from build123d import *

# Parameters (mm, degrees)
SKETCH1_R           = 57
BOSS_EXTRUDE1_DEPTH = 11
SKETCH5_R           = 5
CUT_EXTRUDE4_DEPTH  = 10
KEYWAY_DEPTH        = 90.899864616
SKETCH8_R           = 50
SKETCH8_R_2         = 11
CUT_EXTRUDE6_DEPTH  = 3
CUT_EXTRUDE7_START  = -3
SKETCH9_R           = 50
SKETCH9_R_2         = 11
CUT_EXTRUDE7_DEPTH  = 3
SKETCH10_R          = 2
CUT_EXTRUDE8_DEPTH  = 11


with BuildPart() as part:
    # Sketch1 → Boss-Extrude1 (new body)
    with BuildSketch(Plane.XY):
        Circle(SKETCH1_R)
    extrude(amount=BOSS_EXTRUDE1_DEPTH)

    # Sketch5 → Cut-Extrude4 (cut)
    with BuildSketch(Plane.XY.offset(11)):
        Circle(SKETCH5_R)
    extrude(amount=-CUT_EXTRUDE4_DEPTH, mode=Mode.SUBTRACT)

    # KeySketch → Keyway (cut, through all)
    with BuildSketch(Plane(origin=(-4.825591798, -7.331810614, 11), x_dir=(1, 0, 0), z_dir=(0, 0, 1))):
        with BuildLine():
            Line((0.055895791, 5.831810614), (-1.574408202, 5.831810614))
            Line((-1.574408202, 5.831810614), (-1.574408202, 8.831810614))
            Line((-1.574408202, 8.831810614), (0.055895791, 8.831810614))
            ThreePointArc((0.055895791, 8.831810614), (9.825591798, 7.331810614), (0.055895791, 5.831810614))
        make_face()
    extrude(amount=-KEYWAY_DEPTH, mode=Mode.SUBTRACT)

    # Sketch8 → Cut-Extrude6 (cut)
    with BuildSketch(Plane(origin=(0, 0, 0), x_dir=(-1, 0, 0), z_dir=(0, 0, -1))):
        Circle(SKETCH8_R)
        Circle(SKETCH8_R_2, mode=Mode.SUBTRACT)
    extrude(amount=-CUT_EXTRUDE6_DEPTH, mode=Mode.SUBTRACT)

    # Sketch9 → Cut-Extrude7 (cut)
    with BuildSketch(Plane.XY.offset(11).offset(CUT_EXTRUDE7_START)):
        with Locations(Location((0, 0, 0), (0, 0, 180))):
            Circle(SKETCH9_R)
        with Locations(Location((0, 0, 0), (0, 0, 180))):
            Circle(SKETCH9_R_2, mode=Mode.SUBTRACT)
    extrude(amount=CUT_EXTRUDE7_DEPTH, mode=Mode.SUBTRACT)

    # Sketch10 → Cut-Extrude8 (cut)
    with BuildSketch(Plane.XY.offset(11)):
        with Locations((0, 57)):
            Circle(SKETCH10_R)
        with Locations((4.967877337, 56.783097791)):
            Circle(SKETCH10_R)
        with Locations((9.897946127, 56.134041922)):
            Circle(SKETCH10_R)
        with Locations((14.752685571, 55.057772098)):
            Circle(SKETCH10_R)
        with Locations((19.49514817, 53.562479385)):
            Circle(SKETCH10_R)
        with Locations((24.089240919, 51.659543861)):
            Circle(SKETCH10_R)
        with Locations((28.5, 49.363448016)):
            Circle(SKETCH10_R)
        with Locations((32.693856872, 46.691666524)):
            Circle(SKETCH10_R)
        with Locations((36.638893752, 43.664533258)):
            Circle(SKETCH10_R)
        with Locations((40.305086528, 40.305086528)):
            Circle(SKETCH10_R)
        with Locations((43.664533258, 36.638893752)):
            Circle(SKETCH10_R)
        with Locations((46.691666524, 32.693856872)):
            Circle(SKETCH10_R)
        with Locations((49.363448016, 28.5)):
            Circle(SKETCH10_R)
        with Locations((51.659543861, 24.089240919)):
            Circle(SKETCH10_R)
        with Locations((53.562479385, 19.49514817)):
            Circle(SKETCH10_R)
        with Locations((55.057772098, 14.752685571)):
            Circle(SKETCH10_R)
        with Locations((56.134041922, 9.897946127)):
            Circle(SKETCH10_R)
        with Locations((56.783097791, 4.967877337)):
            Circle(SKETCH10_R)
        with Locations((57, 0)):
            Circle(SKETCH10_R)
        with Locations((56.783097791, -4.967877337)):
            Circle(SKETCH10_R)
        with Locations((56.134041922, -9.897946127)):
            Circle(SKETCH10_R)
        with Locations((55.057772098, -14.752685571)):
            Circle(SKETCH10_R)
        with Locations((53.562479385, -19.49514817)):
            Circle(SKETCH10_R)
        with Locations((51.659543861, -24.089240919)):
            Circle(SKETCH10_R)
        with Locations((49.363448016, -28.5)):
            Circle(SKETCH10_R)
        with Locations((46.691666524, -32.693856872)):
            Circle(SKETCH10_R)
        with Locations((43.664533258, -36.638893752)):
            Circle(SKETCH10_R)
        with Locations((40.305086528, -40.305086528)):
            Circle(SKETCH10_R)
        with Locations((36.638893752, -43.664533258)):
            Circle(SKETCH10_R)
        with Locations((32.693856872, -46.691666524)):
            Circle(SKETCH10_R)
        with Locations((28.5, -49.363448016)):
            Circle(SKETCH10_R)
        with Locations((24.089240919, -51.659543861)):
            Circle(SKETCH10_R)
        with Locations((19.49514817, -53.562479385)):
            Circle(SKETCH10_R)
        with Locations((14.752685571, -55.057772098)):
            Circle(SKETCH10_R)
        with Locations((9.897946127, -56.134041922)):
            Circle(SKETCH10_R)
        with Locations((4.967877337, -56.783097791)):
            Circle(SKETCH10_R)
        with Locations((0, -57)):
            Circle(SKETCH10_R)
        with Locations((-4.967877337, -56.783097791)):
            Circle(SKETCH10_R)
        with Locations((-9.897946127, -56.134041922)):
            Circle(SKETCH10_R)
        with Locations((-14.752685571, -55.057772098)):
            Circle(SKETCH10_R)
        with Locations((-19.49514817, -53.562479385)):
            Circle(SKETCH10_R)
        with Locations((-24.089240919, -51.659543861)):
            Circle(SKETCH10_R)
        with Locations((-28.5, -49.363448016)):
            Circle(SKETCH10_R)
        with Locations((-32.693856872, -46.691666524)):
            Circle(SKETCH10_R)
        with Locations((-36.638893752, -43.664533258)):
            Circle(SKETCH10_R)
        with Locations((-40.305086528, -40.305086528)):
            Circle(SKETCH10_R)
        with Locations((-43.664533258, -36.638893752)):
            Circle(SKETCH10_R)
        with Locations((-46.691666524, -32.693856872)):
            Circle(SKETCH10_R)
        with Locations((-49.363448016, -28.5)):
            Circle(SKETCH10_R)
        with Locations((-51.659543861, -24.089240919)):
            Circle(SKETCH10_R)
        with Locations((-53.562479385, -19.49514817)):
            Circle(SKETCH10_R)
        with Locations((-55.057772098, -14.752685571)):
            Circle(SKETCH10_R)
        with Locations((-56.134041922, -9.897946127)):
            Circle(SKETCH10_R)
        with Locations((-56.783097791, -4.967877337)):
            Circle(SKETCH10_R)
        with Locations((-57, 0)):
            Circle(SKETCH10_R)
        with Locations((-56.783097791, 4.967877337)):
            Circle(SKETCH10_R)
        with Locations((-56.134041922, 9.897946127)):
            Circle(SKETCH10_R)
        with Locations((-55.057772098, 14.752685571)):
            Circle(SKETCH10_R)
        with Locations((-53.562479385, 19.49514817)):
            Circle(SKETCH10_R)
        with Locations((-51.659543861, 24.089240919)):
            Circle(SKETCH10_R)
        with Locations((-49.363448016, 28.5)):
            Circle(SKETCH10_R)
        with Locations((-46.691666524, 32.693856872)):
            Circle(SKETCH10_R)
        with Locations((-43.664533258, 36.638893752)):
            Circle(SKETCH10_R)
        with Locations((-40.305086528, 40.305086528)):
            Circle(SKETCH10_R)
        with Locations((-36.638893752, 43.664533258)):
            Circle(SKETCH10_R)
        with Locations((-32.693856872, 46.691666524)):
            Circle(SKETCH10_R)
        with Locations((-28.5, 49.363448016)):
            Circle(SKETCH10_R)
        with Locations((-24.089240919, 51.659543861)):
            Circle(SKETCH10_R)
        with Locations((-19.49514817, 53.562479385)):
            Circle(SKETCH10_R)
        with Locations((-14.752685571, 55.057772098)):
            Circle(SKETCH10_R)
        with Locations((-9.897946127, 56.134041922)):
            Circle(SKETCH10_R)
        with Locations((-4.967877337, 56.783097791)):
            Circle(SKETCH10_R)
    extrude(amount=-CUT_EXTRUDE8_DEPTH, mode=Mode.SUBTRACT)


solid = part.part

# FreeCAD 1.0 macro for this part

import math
import FreeCAD as App
import Part
import Sketcher

V = App.Vector
Q = App.Units.Quantity

doc = App.newDocument("Part")
body = doc.addObject("PartDesign::Body", "Body")

# Sketch on XY plane
sketch1 = body.newObject("Sketcher::SketchObject", "Sketch")
sketch1.AttachmentSupport = (doc.getObject("XY_Plane"), [""])
sketch1.MapMode = "FlatFace"
sketch1.addGeometry(Part.Circle(V(0, 0, 0), V(0, 0, 1), 57), False)
sketch1.addConstraint([
    Sketcher.Constraint("Coincident", 0, 3, -1, 1),
    Sketcher.Constraint("Diameter", 0, Q("114 mm")),
])
pad1 = body.newObject("PartDesign::Pad", "Pad")
pad1.Profile = sketch1
pad1.Length = 11

# Sketch on XY plane
sketch2 = body.newObject("Sketcher::SketchObject", "Sketch001")
sketch2.AttachmentSupport = (doc.getObject("XY_Plane"), [""])
sketch2.MapMode = "FlatFace"
sketch2.AttachmentOffset = App.Placement(V(0, 0, 11), App.Rotation())
sketch2.addGeometry(Part.Circle(V(0, 0, 0), V(0, 0, 1), 5), False)
sketch2.addConstraint([
    Sketcher.Constraint("Coincident", 0, 3, -1, 1),
    Sketcher.Constraint("Diameter", 0, Q("10 mm")),
])
pocket1 = body.newObject("PartDesign::Pocket", "Pocket")
pocket1.Profile = sketch2
pocket1.Length = 10

# Sketch on XY plane
sketch3 = body.newObject("Sketcher::SketchObject", "Sketch002")
sketch3.AttachmentSupport = (doc.getObject("XY_Plane"), [""])
sketch3.MapMode = "FlatFace"
sketch3.AttachmentOffset = App.Placement(V(0, 0, 11), App.Rotation())
sketch3.addGeometry([
    Part.LineSegment(V(-6.4, -1.5, 0), V(-4.8, -1.5, 0)),
    Part.ArcOfCircle(Part.Circle(V(0, 0, 0), V(0, 0, 1), 5), math.radians(-163), math.radians(163)),
    Part.LineSegment(V(-4.8, 1.5, 0), V(-6.4, 1.5, 0)),
    Part.LineSegment(V(-6.4, 1.5, 0), V(-6.4, -1.5, 0)),
], False)
sketch3.addConstraint([
    Sketcher.Constraint("Coincident", 0, 2, 1, 1),
    Sketcher.Constraint("Coincident", 1, 2, 2, 1),
    Sketcher.Constraint("Coincident", 2, 2, 3, 1),
    Sketcher.Constraint("Coincident", 3, 2, 0, 1),
    Sketcher.Constraint("Horizontal", 0),
    Sketcher.Constraint("Horizontal", 2),
    Sketcher.Constraint("Vertical", 3),
    Sketcher.Constraint("Coincident", 1, 3, -1, 1),
    Sketcher.Constraint("Vertical", 0, 2, 1, 2),
    Sketcher.Constraint("Radius", 1, Q("5 mm")),
    Sketcher.Constraint("DistanceY", 3, 2, 3, 1, Q("3 mm")),
    Sketcher.Constraint("DistanceX", 2, 2, -1, 1, Q("6.4 mm")),
])
pocket2 = body.newObject("PartDesign::Pocket", "Pocket001")
pocket2.Profile = sketch3
pocket2.Type = "ThroughAll"

# Sketch on XY plane
sketch4 = body.newObject("Sketcher::SketchObject", "Sketch003")
sketch4.AttachmentSupport = (doc.getObject("XY_Plane"), [""])
sketch4.MapMode = "FlatFace"
sketch4.addGeometry([
    Part.Circle(V(0, 0, 0), V(0, 0, 1), 50),
    Part.Circle(V(0, 0, 0), V(0, 0, 1), 11),
], False)
sketch4.addConstraint([
    Sketcher.Constraint("Coincident", 0, 3, -1, 1),
    Sketcher.Constraint("Coincident", 1, 3, -1, 1),
    Sketcher.Constraint("Diameter", 0, Q("100 mm")),
    Sketcher.Constraint("Diameter", 1, Q("22 mm")),
])
pocket3 = body.newObject("PartDesign::Pocket", "Pocket002")
pocket3.Profile = sketch4
pocket3.Length = 3
pocket3.Reversed = True

# Sketch on XY plane
sketch5 = body.newObject("Sketcher::SketchObject", "Sketch004")
sketch5.AttachmentSupport = (doc.getObject("XY_Plane"), [""])
sketch5.MapMode = "FlatFace"
sketch5.AttachmentOffset = App.Placement(V(0, 0, 8), App.Rotation())
sketch5.addGeometry([
    Part.Circle(V(0, 0, 0), V(0, 0, 1), 50),
    Part.Circle(V(0, 0, 0), V(0, 0, 1), 11),
], False)
sketch5.addConstraint([
    Sketcher.Constraint("Coincident", 0, 3, -1, 1),
    Sketcher.Constraint("Coincident", 1, 3, -1, 1),
    Sketcher.Constraint("Diameter", 0, Q("100 mm")),
    Sketcher.Constraint("Diameter", 1, Q("22 mm")),
])
pocket4 = body.newObject("PartDesign::Pocket", "Pocket003")
pocket4.Profile = sketch5
pocket4.Length = 3
pocket4.Reversed = True

# Sketch on XY plane
sketch6 = body.newObject("Sketcher::SketchObject", "Sketch005")
sketch6.AttachmentSupport = (doc.getObject("XY_Plane"), [""])
sketch6.MapMode = "FlatFace"
sketch6.AttachmentOffset = App.Placement(V(0, 0, 11), App.Rotation())
sketch6.addGeometry([
    Part.Circle(V(0, 57, 0), V(0, 0, 1), 2),  # 0
    Part.Circle(V(5, 56.8, 0), V(0, 0, 1), 2),  # 1
    Part.Circle(V(9.9, 56.1, 0), V(0, 0, 1), 2),  # 2
    Part.Circle(V(14.8, 55.1, 0), V(0, 0, 1), 2),  # 3
    Part.Circle(V(19.5, 53.6, 0), V(0, 0, 1), 2),  # 4
    Part.Circle(V(24.1, 51.7, 0), V(0, 0, 1), 2),  # 5
    Part.Circle(V(28.5, 49.4, 0), V(0, 0, 1), 2),  # 6
    Part.Circle(V(32.7, 46.7, 0), V(0, 0, 1), 2),  # 7
    Part.Circle(V(36.6, 43.7, 0), V(0, 0, 1), 2),  # 8
    Part.Circle(V(40.3, 40.3, 0), V(0, 0, 1), 2),  # 9
    Part.Circle(V(43.7, 36.6, 0), V(0, 0, 1), 2),  # 10
    Part.Circle(V(46.7, 32.7, 0), V(0, 0, 1), 2),  # 11
    Part.Circle(V(49.4, 28.5, 0), V(0, 0, 1), 2),  # 12
    Part.Circle(V(51.7, 24.1, 0), V(0, 0, 1), 2),  # 13
    Part.Circle(V(53.6, 19.5, 0), V(0, 0, 1), 2),  # 14
    Part.Circle(V(55.1, 14.8, 0), V(0, 0, 1), 2),  # 15
    Part.Circle(V(56.1, 9.9, 0), V(0, 0, 1), 2),  # 16
    Part.Circle(V(56.8, 5, 0), V(0, 0, 1), 2),  # 17
    Part.Circle(V(57, 0, 0), V(0, 0, 1), 2),  # 18
    Part.Circle(V(56.8, -5, 0), V(0, 0, 1), 2),  # 19
    Part.Circle(V(56.1, -9.9, 0), V(0, 0, 1), 2),  # 20
    Part.Circle(V(55.1, -14.8, 0), V(0, 0, 1), 2),  # 21
    Part.Circle(V(53.6, -19.5, 0), V(0, 0, 1), 2),  # 22
    Part.Circle(V(51.7, -24.1, 0), V(0, 0, 1), 2),  # 23
    Part.Circle(V(49.4, -28.5, 0), V(0, 0, 1), 2),  # 24
    Part.Circle(V(46.7, -32.7, 0), V(0, 0, 1), 2),  # 25
    Part.Circle(V(43.7, -36.6, 0), V(0, 0, 1), 2),  # 26
    Part.Circle(V(40.3, -40.3, 0), V(0, 0, 1), 2),  # 27
    Part.Circle(V(36.6, -43.7, 0), V(0, 0, 1), 2),  # 28
    Part.Circle(V(32.7, -46.7, 0), V(0, 0, 1), 2),  # 29
    Part.Circle(V(28.5, -49.4, 0), V(0, 0, 1), 2),  # 30
    Part.Circle(V(24.1, -51.7, 0), V(0, 0, 1), 2),  # 31
    Part.Circle(V(19.5, -53.6, 0), V(0, 0, 1), 2),  # 32
    Part.Circle(V(14.8, -55.1, 0), V(0, 0, 1), 2),  # 33
    Part.Circle(V(9.9, -56.1, 0), V(0, 0, 1), 2),  # 34
    Part.Circle(V(5, -56.8, 0), V(0, 0, 1), 2),  # 35
    Part.Circle(V(0, -57, 0), V(0, 0, 1), 2),  # 36
    Part.Circle(V(-5, -56.8, 0), V(0, 0, 1), 2),  # 37
    Part.Circle(V(-9.9, -56.1, 0), V(0, 0, 1), 2),  # 38
    Part.Circle(V(-14.8, -55.1, 0), V(0, 0, 1), 2),  # 39
    Part.Circle(V(-19.5, -53.6, 0), V(0, 0, 1), 2),  # 40
    Part.Circle(V(-24.1, -51.7, 0), V(0, 0, 1), 2),  # 41
    Part.Circle(V(-28.5, -49.4, 0), V(0, 0, 1), 2),  # 42
    Part.Circle(V(-32.7, -46.7, 0), V(0, 0, 1), 2),  # 43
    Part.Circle(V(-36.6, -43.7, 0), V(0, 0, 1), 2),  # 44
    Part.Circle(V(-40.3, -40.3, 0), V(0, 0, 1), 2),  # 45
    Part.Circle(V(-43.7, -36.6, 0), V(0, 0, 1), 2),  # 46
    Part.Circle(V(-46.7, -32.7, 0), V(0, 0, 1), 2),  # 47
    Part.Circle(V(-49.4, -28.5, 0), V(0, 0, 1), 2),  # 48
    Part.Circle(V(-51.7, -24.1, 0), V(0, 0, 1), 2),  # 49
    Part.Circle(V(-53.6, -19.5, 0), V(0, 0, 1), 2),  # 50
    Part.Circle(V(-55.1, -14.8, 0), V(0, 0, 1), 2),  # 51
    Part.Circle(V(-56.1, -9.9, 0), V(0, 0, 1), 2),  # 52
    Part.Circle(V(-56.8, -5, 0), V(0, 0, 1), 2),  # 53
    Part.Circle(V(-57, 0, 0), V(0, 0, 1), 2),  # 54
    Part.Circle(V(-56.8, 5, 0), V(0, 0, 1), 2),  # 55
    Part.Circle(V(-56.1, 9.9, 0), V(0, 0, 1), 2),  # 56
    Part.Circle(V(-55.1, 14.8, 0), V(0, 0, 1), 2),  # 57
    Part.Circle(V(-53.6, 19.5, 0), V(0, 0, 1), 2),  # 58
    Part.Circle(V(-51.7, 24.1, 0), V(0, 0, 1), 2),  # 59
    Part.Circle(V(-49.4, 28.5, 0), V(0, 0, 1), 2),  # 60
    Part.Circle(V(-46.7, 32.7, 0), V(0, 0, 1), 2),  # 61
    Part.Circle(V(-43.7, 36.6, 0), V(0, 0, 1), 2),  # 62
    Part.Circle(V(-40.3, 40.3, 0), V(0, 0, 1), 2),  # 63
    Part.Circle(V(-36.6, 43.7, 0), V(0, 0, 1), 2),  # 64
    Part.Circle(V(-32.7, 46.7, 0), V(0, 0, 1), 2),  # 65
    Part.Circle(V(-28.5, 49.4, 0), V(0, 0, 1), 2),  # 66
    Part.Circle(V(-24.1, 51.7, 0), V(0, 0, 1), 2),  # 67
    Part.Circle(V(-19.5, 53.6, 0), V(0, 0, 1), 2),  # 68
    Part.Circle(V(-14.8, 55.1, 0), V(0, 0, 1), 2),  # 69
    Part.Circle(V(-9.9, 56.1, 0), V(0, 0, 1), 2),  # 70
    Part.Circle(V(-5, 56.8, 0), V(0, 0, 1), 2),  # 71
], False)
sketch6.addConstraint([
    Sketcher.Constraint("Equal", 0, 1),
    Sketcher.Constraint("Equal", 1, 2),
    Sketcher.Constraint("Equal", 2, 3),
    Sketcher.Constraint("Equal", 3, 4),
    Sketcher.Constraint("Equal", 4, 5),
    Sketcher.Constraint("Equal", 5, 6),
    Sketcher.Constraint("Equal", 6, 7),
    Sketcher.Constraint("Equal", 7, 8),
    Sketcher.Constraint("Equal", 8, 9),
    Sketcher.Constraint("Equal", 9, 10),
    Sketcher.Constraint("Equal", 10, 11),
    Sketcher.Constraint("Equal", 11, 12),
    Sketcher.Constraint("Equal", 12, 13),
    Sketcher.Constraint("Equal", 13, 14),
    Sketcher.Constraint("Equal", 14, 15),
    Sketcher.Constraint("Equal", 15, 16),
    Sketcher.Constraint("Equal", 16, 17),
    Sketcher.Constraint("Equal", 17, 18),
    Sketcher.Constraint("Equal", 18, 19),
    Sketcher.Constraint("Equal", 19, 20),
    Sketcher.Constraint("Equal", 20, 21),
    Sketcher.Constraint("Equal", 21, 22),
    Sketcher.Constraint("Equal", 22, 23),
    Sketcher.Constraint("Equal", 23, 24),
    Sketcher.Constraint("Equal", 24, 25),
    Sketcher.Constraint("Equal", 25, 26),
    Sketcher.Constraint("Equal", 26, 27),
    Sketcher.Constraint("Equal", 27, 28),
    Sketcher.Constraint("Equal", 28, 29),
    Sketcher.Constraint("Equal", 29, 30),
    Sketcher.Constraint("Equal", 30, 31),
    Sketcher.Constraint("Equal", 31, 32),
    Sketcher.Constraint("Equal", 32, 33),
    Sketcher.Constraint("Equal", 33, 34),
    Sketcher.Constraint("Equal", 34, 35),
    Sketcher.Constraint("Equal", 35, 36),
    Sketcher.Constraint("Equal", 36, 37),
    Sketcher.Constraint("Equal", 37, 38),
    Sketcher.Constraint("Equal", 38, 39),
    Sketcher.Constraint("Equal", 39, 40),
    Sketcher.Constraint("Equal", 40, 41),
    Sketcher.Constraint("Equal", 41, 42),
    Sketcher.Constraint("Equal", 42, 43),
    Sketcher.Constraint("Equal", 43, 44),
    Sketcher.Constraint("Equal", 44, 45),
    Sketcher.Constraint("Equal", 45, 46),
    Sketcher.Constraint("Equal", 46, 47),
    Sketcher.Constraint("Equal", 47, 48),
    Sketcher.Constraint("Equal", 48, 49),
    Sketcher.Constraint("Equal", 49, 50),
    Sketcher.Constraint("Equal", 50, 51),
    Sketcher.Constraint("Equal", 51, 52),
    Sketcher.Constraint("Equal", 52, 53),
    Sketcher.Constraint("Equal", 53, 54),
    Sketcher.Constraint("Equal", 54, 55),
    Sketcher.Constraint("Equal", 55, 56),
    Sketcher.Constraint("Equal", 56, 57),
    Sketcher.Constraint("Equal", 57, 58),
    Sketcher.Constraint("Equal", 58, 59),
    Sketcher.Constraint("Equal", 59, 60),
    Sketcher.Constraint("Equal", 60, 61),
    Sketcher.Constraint("Equal", 61, 62),
    Sketcher.Constraint("Equal", 62, 63),
    Sketcher.Constraint("Equal", 63, 64),
    Sketcher.Constraint("Equal", 64, 65),
    Sketcher.Constraint("Equal", 65, 66),
    Sketcher.Constraint("Equal", 66, 67),
    Sketcher.Constraint("Equal", 67, 68),
    Sketcher.Constraint("Equal", 68, 69),
    Sketcher.Constraint("Equal", 69, 70),
    Sketcher.Constraint("Equal", 70, 71),
    Sketcher.Constraint("Symmetric", 0, 3, 36, 3, -1, 1),
    Sketcher.Constraint("Symmetric", 1, 3, 37, 3, -1, 1),
    Sketcher.Constraint("Symmetric", 2, 3, 38, 3, -1, 1),
    Sketcher.Constraint("Symmetric", 3, 3, 39, 3, -1, 1),
    Sketcher.Constraint("Symmetric", 4, 3, 40, 3, -1, 1),
    Sketcher.Constraint("Symmetric", 5, 3, 41, 3, -1, 1),
    Sketcher.Constraint("Symmetric", 6, 3, 42, 3, -1, 1),
    Sketcher.Constraint("Symmetric", 7, 3, 43, 3, -1, 1),
    Sketcher.Constraint("Symmetric", 8, 3, 44, 3, -1, 1),
    Sketcher.Constraint("Symmetric", 9, 3, 45, 3, -1, 1),
    Sketcher.Constraint("Symmetric", 10, 3, 46, 3, -1, 1),
    Sketcher.Constraint("Symmetric", 11, 3, 47, 3, -1, 1),
    Sketcher.Constraint("Symmetric", 12, 3, 48, 3, -1, 1),
    Sketcher.Constraint("Symmetric", 13, 3, 49, 3, -1, 1),
    Sketcher.Constraint("Symmetric", 14, 3, 50, 3, -1, 1),
    Sketcher.Constraint("Symmetric", 15, 3, 51, 3, -1, 1),
    Sketcher.Constraint("Symmetric", 16, 3, 52, 3, -1, 1),
    Sketcher.Constraint("Symmetric", 17, 3, 53, 3, -1, 1),
    Sketcher.Constraint("Symmetric", 18, 3, 54, 3, -1, 1),
    Sketcher.Constraint("Symmetric", 19, 3, 55, 3, -1, 1),
    Sketcher.Constraint("Symmetric", 20, 3, 56, 3, -1, 1),
    Sketcher.Constraint("Symmetric", 21, 3, 57, 3, -1, 1),
    Sketcher.Constraint("Symmetric", 22, 3, 58, 3, -1, 1),
    Sketcher.Constraint("Symmetric", 23, 3, 59, 3, -1, 1),
    Sketcher.Constraint("Symmetric", 24, 3, 60, 3, -1, 1),
    Sketcher.Constraint("Symmetric", 25, 3, 61, 3, -1, 1),
    Sketcher.Constraint("Symmetric", 26, 3, 62, 3, -1, 1),
    Sketcher.Constraint("Symmetric", 27, 3, 63, 3, -1, 1),
    Sketcher.Constraint("Symmetric", 28, 3, 64, 3, -1, 1),
    Sketcher.Constraint("Symmetric", 29, 3, 65, 3, -1, 1),
    Sketcher.Constraint("Symmetric", 30, 3, 66, 3, -1, 1),
    Sketcher.Constraint("Symmetric", 31, 3, 67, 3, -1, 1),
    Sketcher.Constraint("Symmetric", 32, 3, 68, 3, -1, 1),
    Sketcher.Constraint("Symmetric", 33, 3, 69, 3, -1, 1),
    Sketcher.Constraint("Symmetric", 34, 3, 70, 3, -1, 1),
    Sketcher.Constraint("Symmetric", 35, 3, 71, 3, -1, 1),
    Sketcher.Constraint("Symmetric", 35, 3, 37, 3, -2),
    Sketcher.Constraint("Symmetric", 34, 3, 38, 3, -2),
    Sketcher.Constraint("Symmetric", 33, 3, 39, 3, -2),
    Sketcher.Constraint("Symmetric", 32, 3, 40, 3, -2),
    Sketcher.Constraint("Symmetric", 31, 3, 41, 3, -2),
    Sketcher.Constraint("Symmetric", 30, 3, 42, 3, -2),
    Sketcher.Constraint("Symmetric", 29, 3, 43, 3, -2),
    Sketcher.Constraint("Symmetric", 28, 3, 44, 3, -2),
    Sketcher.Constraint("Symmetric", 27, 3, 45, 3, -2),
    Sketcher.Constraint("Symmetric", 26, 3, 46, 3, -2),
    Sketcher.Constraint("Symmetric", 25, 3, 47, 3, -2),
    Sketcher.Constraint("Symmetric", 24, 3, 48, 3, -2),
    Sketcher.Constraint("Symmetric", 23, 3, 49, 3, -2),
    Sketcher.Constraint("Symmetric", 22, 3, 50, 3, -2),
    Sketcher.Constraint("Symmetric", 21, 3, 51, 3, -2),
    Sketcher.Constraint("Symmetric", 20, 3, 52, 3, -2),
    Sketcher.Constraint("Symmetric", 19, 3, 53, 3, -2),
    Sketcher.Constraint("PointOnObject", 0, 3, -2),
    Sketcher.Constraint("PointOnObject", 18, 3, -1),
    Sketcher.Constraint("Diameter", 0, Q("4 mm")),
    Sketcher.Constraint("DistanceY", -1, 1, 0, 3, Q("57 mm")),
    Sketcher.Constraint("DistanceX", -1, 1, 18, 3, Q("57 mm")),
    Sketcher.Constraint("DistanceX", -1, 1, 6, 3, Q("28.5 mm")),
    Sketcher.Constraint("DistanceY", -1, 1, 12, 3, Q("28.5 mm")),
    Sketcher.Constraint("DistanceY", -1, 1, 2, 3, Q("56.134042 mm")),
    Sketcher.Constraint("DistanceX", -1, 1, 4, 3, Q("19.495148 mm")),
    Sketcher.Constraint("DistanceY", -1, 1, 4, 3, Q("53.562479 mm")),
    Sketcher.Constraint("DistanceX", -1, 1, 5, 3, Q("24.089241 mm")),
    Sketcher.Constraint("DistanceY", -1, 1, 6, 3, Q("49.363448 mm")),
    Sketcher.Constraint("DistanceX", -1, 1, 12, 3, Q("49.363448 mm")),
    Sketcher.Constraint("DistanceY", -1, 1, 13, 3, Q("24.089241 mm")),
    Sketcher.Constraint("DistanceX", -1, 1, 14, 3, Q("53.562479 mm")),
    Sketcher.Constraint("DistanceY", -1, 1, 14, 3, Q("19.495148 mm")),
    Sketcher.Constraint("DistanceX", -1, 1, 16, 3, Q("56.134042 mm")),
    Sketcher.Constraint("DistanceX", -1, 1, 1, 3, Q("4.967877 mm")),
    Sketcher.Constraint("DistanceY", -1, 1, 1, 3, Q("56.783098 mm")),
    Sketcher.Constraint("DistanceX", -1, 1, 2, 3, Q("9.897946 mm")),
    Sketcher.Constraint("DistanceX", -1, 1, 3, 3, Q("14.752686 mm")),
    Sketcher.Constraint("DistanceY", -1, 1, 3, 3, Q("55.057772 mm")),
    Sketcher.Constraint("DistanceY", -1, 1, 5, 3, Q("51.659544 mm")),
    Sketcher.Constraint("DistanceX", -1, 1, 7, 3, Q("32.693857 mm")),
    Sketcher.Constraint("DistanceY", -1, 1, 7, 3, Q("46.691667 mm")),
    Sketcher.Constraint("DistanceX", -1, 1, 8, 3, Q("36.638894 mm")),
    Sketcher.Constraint("DistanceY", -1, 1, 8, 3, Q("43.664533 mm")),
    Sketcher.Constraint("DistanceX", -1, 1, 9, 3, Q("40.305087 mm")),
    Sketcher.Constraint("DistanceY", -1, 1, 9, 3, Q("40.305087 mm")),
    Sketcher.Constraint("DistanceX", -1, 1, 10, 3, Q("43.664533 mm")),
    Sketcher.Constraint("DistanceY", -1, 1, 10, 3, Q("36.638894 mm")),
    Sketcher.Constraint("DistanceX", -1, 1, 11, 3, Q("46.691667 mm")),
    Sketcher.Constraint("DistanceY", -1, 1, 11, 3, Q("32.693857 mm")),
    Sketcher.Constraint("DistanceX", -1, 1, 13, 3, Q("51.659544 mm")),
    Sketcher.Constraint("DistanceX", -1, 1, 15, 3, Q("55.057772 mm")),
    Sketcher.Constraint("DistanceY", -1, 1, 15, 3, Q("14.752686 mm")),
    Sketcher.Constraint("DistanceY", -1, 1, 16, 3, Q("9.897946 mm")),
    Sketcher.Constraint("DistanceX", -1, 1, 17, 3, Q("56.783098 mm")),
    Sketcher.Constraint("DistanceY", -1, 1, 17, 3, Q("4.967877 mm")),
])
pocket5 = body.newObject("PartDesign::Pocket", "Pocket004")
pocket5.Profile = sketch6
pocket5.Length = 11

doc.recompute()
